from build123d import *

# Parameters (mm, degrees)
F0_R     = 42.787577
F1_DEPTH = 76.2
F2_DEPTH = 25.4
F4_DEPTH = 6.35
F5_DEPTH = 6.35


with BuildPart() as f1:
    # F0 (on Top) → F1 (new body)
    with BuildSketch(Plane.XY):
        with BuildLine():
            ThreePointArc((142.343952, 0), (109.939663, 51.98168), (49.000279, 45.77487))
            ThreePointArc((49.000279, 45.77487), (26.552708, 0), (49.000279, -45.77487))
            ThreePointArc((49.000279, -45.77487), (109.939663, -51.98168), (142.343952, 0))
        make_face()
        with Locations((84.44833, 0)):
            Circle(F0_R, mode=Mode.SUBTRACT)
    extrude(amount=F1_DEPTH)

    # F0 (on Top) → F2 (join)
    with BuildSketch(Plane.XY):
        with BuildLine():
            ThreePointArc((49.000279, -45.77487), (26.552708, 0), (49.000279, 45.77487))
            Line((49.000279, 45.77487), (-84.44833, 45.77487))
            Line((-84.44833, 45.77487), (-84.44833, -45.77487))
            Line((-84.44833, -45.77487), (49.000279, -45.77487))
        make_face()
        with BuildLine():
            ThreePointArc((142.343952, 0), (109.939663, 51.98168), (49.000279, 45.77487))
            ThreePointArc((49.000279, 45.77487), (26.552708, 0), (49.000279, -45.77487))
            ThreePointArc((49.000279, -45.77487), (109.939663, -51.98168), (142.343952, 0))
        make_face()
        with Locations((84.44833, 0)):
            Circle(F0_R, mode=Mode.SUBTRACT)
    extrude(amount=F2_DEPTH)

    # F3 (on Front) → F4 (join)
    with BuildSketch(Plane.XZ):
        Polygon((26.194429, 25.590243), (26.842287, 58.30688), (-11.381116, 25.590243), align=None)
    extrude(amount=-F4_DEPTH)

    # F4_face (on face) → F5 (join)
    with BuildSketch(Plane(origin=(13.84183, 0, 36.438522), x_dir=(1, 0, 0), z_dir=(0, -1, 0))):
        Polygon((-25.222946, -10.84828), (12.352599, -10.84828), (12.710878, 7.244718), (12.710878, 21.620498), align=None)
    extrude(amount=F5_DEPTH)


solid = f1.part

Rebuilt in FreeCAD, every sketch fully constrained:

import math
import FreeCAD as App
import Part
import Sketcher
from FreeCAD import Vector

doc = App.newDocument("Part")
params = doc.addObject("Spreadsheet::Sheet", "Params")
for row, (alias, value) in enumerate([
    ("pad1_length", "3 in"),
    ("pad2_length", "1 in"),
    ("pad3_length", "0.25 in"),
    ("pad4_length", "0.25 in"),
], start=1):
    params.set(f"A{row}", alias)
    params.set(f"B{row}", "=" + value)
    params.setAlias(f"B{row}", alias)

body = doc.addObject("PartDesign::Body", "Body")

# Sketch on XY plane
sketch1 = body.newObject("Sketcher::SketchObject", "Sketch")
sketch1.AttachmentSupport = (doc.getObject("XY_Plane"), [""])
sketch1.MapMode = "FlatFace"
sketch1.addGeometry(Part.ArcOfCircle(Part.Circle(Vector(84.44833, 0.000001, 0), Vector(0, 0, 1), 57.895622), math.radians(-0.000001), math.radians(127.754195)), False)
sketch1.addGeometry(Part.ArcOfCircle(Part.Circle(Vector(84.44833, 0, 0), Vector(0, 0, 1), 57.895622), math.radians(127.754194), math.radians(232.245806)), False)
sketch1.addGeometry(Part.ArcOfCircle(Part.Circle(Vector(84.44833, -0.000001, 0), Vector(0, 0, 1), 57.895622), math.radians(-127.754195), math.radians(0.000001)), False)
sketch1.addGeometry(Part.Circle(Vector(84.44833, 0, 0), Vector(0, 0, 1), 42.787577), False)
sketch1.addConstraint(Sketcher.Constraint("Tangent", 0, 2, 1, 1))
sketch1.addConstraint(Sketcher.Constraint("Tangent", 1, 2, 2, 1))
sketch1.addConstraint(Sketcher.Constraint("Tangent", 2, 2, 0, 1))
sketch1.addConstraint(Sketcher.Constraint("Coincident", 3, 3, 0, 3))
sketch1.addConstraint(Sketcher.Constraint("Symmetric", 0, 2, 1, 2, -1))
sketch1.addConstraint(Sketcher.Constraint("PointOnObject", 2, 2, -1))
sketch1.addConstraint(Sketcher.Constraint("Radius", 0, 57.895622))
sketch1.addConstraint(Sketcher.Constraint("Diameter", 3, 85.575154))
sketch1.addConstraint(Sketcher.Constraint("DistanceX", -1, 1, 0, 3, 84.44833))
sketch1.addConstraint(Sketcher.Constraint("DistanceX", -1, 1, 0, 2, 49.000279))
pad1 = body.newObject("PartDesign::Pad", "Pad")
pad1.Profile = sketch1
pad1.setExpression("Length", "Params.pad1_length")

# Sketch on XY plane
sketch2 = body.newObject("Sketcher::SketchObject", "Sketch001")
sketch2.AttachmentSupport = (doc.getObject("XY_Plane"), [""])
sketch2.MapMode = "FlatFace"
sketch2.addGeometry(Part.LineSegment(Vector(49.000279, 45.77487, 0), Vector(-84.44833, 45.77487, 0)), False)
sketch2.addGeometry(Part.LineSegment(Vector(-84.44833, 45.77487, 0), Vector(-84.44833, -45.77487, 0)), False)
sketch2.addGeometry(Part.LineSegment(Vector(-84.44833, -45.77487, 0), Vector(49.000279, -45.77487, 0)), False)
sketch2.addGeometry(Part.ArcOfCircle(Part.Circle(Vector(84.44833, -0.000001, 0), Vector(0, 0, 1), 57.895622), math.radians(-127.754195), math.radians(0.000001)), False)
sketch2.addGeometry(Part.ArcOfCircle(Part.Circle(Vector(84.44833, 0.000001, 0), Vector(0, 0, 1), 57.895622), math.radians(-0.000001), math.radians(127.754195)), False)
sketch2.addGeometry(Part.Circle(Vector(84.44833, 0, 0), Vector(0, 0, 1), 42.787577), False)
sketch2.addConstraint(Sketcher.Constraint("Coincident", 0, 2, 1, 1))
sketch2.addConstraint(Sketcher.Constraint("Coincident", 1, 2, 2, 1))
sketch2.addConstraint(Sketcher.Constraint("Coincident", 2, 2, 3, 1))
sketch2.addConstraint(Sketcher.Constraint("Tangent", 3, 2, 4, 1))
sketch2.addConstraint(Sketcher.Constraint("Coincident", 4, 2, 0, 1))
sketch2.addConstraint(Sketcher.Constraint("Horizontal", 0))
sketch2.addConstraint(Sketcher.Constraint("Vertical", 1))
sketch2.addConstraint(Sketcher.Constraint("Horizontal", 2))
sketch2.addConstraint(Sketcher.Constraint("Coincident", 5, 3, 3, 3))
sketch2.addConstraint(Sketcher.Constraint("Equal", 3, 4))
sketch2.addConstraint(Sketcher.Constraint("Symmetric", 2, 2, 4, 2, -1))
sketch2.addConstraint(Sketcher.Constraint("PointOnObject", 3, 2, -1))
sketch2.addConstraint(Sketcher.Constraint("Radius", 3, 57.895622))
sketch2.addConstraint(Sketcher.Constraint("Diameter", 5, 85.575154))
sketch2.addConstraint(Sketcher.Constraint("DistanceX", 0, 2, 0, 1, 133.448609))
sketch2.addConstraint(Sketcher.Constraint("DistanceY", 1, 2, 1, 1, 91.54974))
sketch2.addConstraint(Sketcher.Constraint("DistanceX", -1, 1, 3, 3, 84.44833))
pad2 = body.newObject("PartDesign::Pad", "Pad001")
pad2.Profile = sketch2
pad2.setExpression("Length", "Params.pad2_length")

# Sketch on XZ plane
sketch3 = body.newObject("Sketcher::SketchObject", "Sketch002")
sketch3.AttachmentSupport = (doc.getObject("XZ_Plane"), [""])
sketch3.MapMode = "FlatFace"
sketch3.addGeometry(Part.LineSegment(Vector(26.194429, 25.590243, 0), Vector(26.842287, 58.30688, 0)), False)
sketch3.addGeometry(Part.LineSegment(Vector(26.842287, 58.30688, 0), Vector(-11.381116, 25.590243, 0)), False)
sketch3.addGeometry(Part.LineSegment(Vector(-11.381116, 25.590243, 0), Vector(26.194429, 25.590243, 0)), False)
sketch3.addConstraint(Sketcher.Constraint("Coincident", 0, 2, 1, 1))
sketch3.addConstraint(Sketcher.Constraint("Coincident", 1, 2, 2, 1))
sketch3.addConstraint(Sketcher.Constraint("Coincident", 2, 2, 0, 1))
sketch3.addConstraint(Sketcher.Constraint("Horizontal", 2))
sketch3.addConstraint(Sketcher.Constraint("Distance", 0, 32.723051))
sketch3.addConstraint(Sketcher.Constraint("Distance", 1, 50.313088))
sketch3.addConstraint(Sketcher.Constraint("DistanceX", 2, 1, 2, 2, 37.575545))
sketch3.addConstraint(Sketcher.Constraint("DistanceY", -1, 1, 0, 2, 58.30688))
sketch3.addConstraint(Sketcher.Constraint("DistanceX", -1, 1, 2, 2, 26.194429))
pad3 = body.newObject("PartDesign::Pad", "Pad002")
pad3.Profile = sketch3
pad3.setExpression("Length", "Params.pad3_length")
pad3.Reversed = True

# Sketch on XZ plane
sketch4 = body.newObject("Sketcher::SketchObject", "Sketch003")
sketch4.AttachmentSupport = (doc.getObject("XZ_Plane"), [""])
sketch4.MapMode = "FlatFace"
sketch4.addGeometry(Part.LineSegment(Vector(-11.381116, 25.590242, 0), Vector(26.194429, 25.590242, 0)), False)
sketch4.addGeometry(Part.LineSegment(Vector(26.194429, 25.590242, 0), Vector(26.552708, 43.68324, 0)), False)
sketch4.addGeometry(Part.LineSegment(Vector(26.552708, 43.68324, 0), Vector(26.552708, 58.05902, 0)), False)
sketch4.addGeometry(Part.LineSegment(Vector(26.552708, 58.05902, 0), Vector(-11.381116, 25.590242, 0)), False)
sketch4.addConstraint(Sketcher.Constraint("Coincident", 0, 2, 1, 1))
sketch4.addConstraint(Sketcher.Constraint("Coincident", 1, 2, 2, 1))
sketch4.addConstraint(Sketcher.Constraint("Coincident", 2, 2, 3, 1))
sketch4.addConstraint(Sketcher.Constraint("Coincident", 3, 2, 0, 1))
sketch4.addConstraint(Sketcher.Constraint("Horizontal", 0))
sketch4.addConstraint(Sketcher.Constraint("Vertical", 2))
sketch4.addConstraint(Sketcher.Constraint("DistanceY", 2, 1, 2, 2, 14.37578))
sketch4.addConstraint(Sketcher.Constraint("Distance", 3, 49.931919))
sketch4.addConstraint(Sketcher.Constraint("DistanceX", 0, 1, 0, 2, 37.575545))
sketch4.addConstraint(Sketcher.Constraint("DistanceX", -1, 1, 0, 2, 26.194429))
sketch4.addConstraint(Sketcher.Constraint("DistanceY", -1, 1, 0, 2, 25.590242))
sketch4.addConstraint(Sketcher.Constraint("DistanceY", -1, 1, 1, 2, 43.68324))
pad4 = body.newObject("PartDesign::Pad", "Pad003")
pad4.Profile = sketch4
pad4.setExpression("Length", "Params.pad4_length")

doc.recompute()
